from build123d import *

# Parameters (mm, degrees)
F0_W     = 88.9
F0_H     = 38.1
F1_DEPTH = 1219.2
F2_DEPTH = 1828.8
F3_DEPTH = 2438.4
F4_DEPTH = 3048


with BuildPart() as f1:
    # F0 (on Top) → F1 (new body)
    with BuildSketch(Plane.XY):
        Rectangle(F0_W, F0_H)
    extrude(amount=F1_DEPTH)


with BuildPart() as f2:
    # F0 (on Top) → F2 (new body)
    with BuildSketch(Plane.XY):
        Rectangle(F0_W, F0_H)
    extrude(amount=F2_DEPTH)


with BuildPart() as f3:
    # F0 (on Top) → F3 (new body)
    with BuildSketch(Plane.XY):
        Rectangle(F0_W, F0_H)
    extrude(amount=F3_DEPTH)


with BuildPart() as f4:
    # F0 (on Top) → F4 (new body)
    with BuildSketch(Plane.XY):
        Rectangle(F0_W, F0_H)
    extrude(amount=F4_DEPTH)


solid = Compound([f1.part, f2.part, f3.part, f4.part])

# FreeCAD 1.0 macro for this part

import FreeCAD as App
import Part
import Sketcher

V = App.Vector
Q = App.Units.Quantity

doc = App.newDocument("Part")
body = doc.addObject("PartDesign::Body", "Body")

# Sketch on XY plane
sketch1 = body.newObject("Sketcher::SketchObject", "Sketch")
sketch1.AttachmentSupport = (doc.getObject("XY_Plane"), [""])
sketch1.MapMode = "FlatFace"
sketch1.addGeometry(Part.LineSegment(V(-44, 19, 0), V(-44, -19, 0)), False)
sketch1.addGeometry(Part.LineSegment(V(-44, -19, 0), V(44, -19, 0)), False)
sketch1.addGeometry(Part.LineSegment(V(44, -19, 0), V(44, 19, 0)), False)
sketch1.addGeometry(Part.LineSegment(V(44, 19, 0), V(-44, 19, 0)), False)
sketch1.addConstraint(Sketcher.Constraint("Coincident", 0, 2, 1, 1))
sketch1.addConstraint(Sketcher.Constraint("Coincident", 1, 2, 2, 1))
sketch1.addConstraint(Sketcher.Constraint("Coincident", 2, 2, 3, 1))
sketch1.addConstraint(Sketcher.Constraint("Coincident", 3, 2, 0, 1))
sketch1.addConstraint(Sketcher.Constraint("Vertical", 0))
sketch1.addConstraint(Sketcher.Constraint("Horizontal", 1))
sketch1.addConstraint(Sketcher.Constraint("Vertical", 2))
sketch1.addConstraint(Sketcher.Constraint("Horizontal", 3))
sketch1.addConstraint(Sketcher.Constraint("Symmetric", 0, 2, 2, 2, -1, 1))
sketch1.addConstraint(Sketcher.Constraint("DistanceX", 1, 1, 1, 2, Q("3.5 in")))
sketch1.addConstraint(Sketcher.Constraint("DistanceY", 0, 2, 0, 1, Q("1.5 in")))
pad1 = body.newObject("PartDesign::Pad", "Pad")
pad1.Profile = sketch1
pad1.Length = Q("48 in")
body2 = doc.addObject("PartDesign::Body", "Body001")

# Sketch on XY plane
sketch2 = body2.newObject("Sketcher::SketchObject", "Sketch001")
sketch2.AttachmentSupport = (doc.getObject("XY_Plane001"), [""])
sketch2.MapMode = "FlatFace"
sketch2.addGeometry(Part.LineSegment(V(-44, 19, 0), V(-44, -19, 0)), False)
sketch2.addGeometry(Part.LineSegment(V(-44, -19, 0), V(44, -19, 0)), False)
sketch2.addGeometry(Part.LineSegment(V(44, -19, 0), V(44, 19, 0)), False)
sketch2.addGeometry(Part.LineSegment(V(44, 19, 0), V(-44, 19, 0)), False)
sketch2.addConstraint(Sketcher.Constraint("Coincident", 0, 2, 1, 1))
sketch2.addConstraint(Sketcher.Constraint("Coincident", 1, 2, 2, 1))
sketch2.addConstraint(Sketcher.Constraint("Coincident", 2, 2, 3, 1))
sketch2.addConstraint(Sketcher.Constraint("Coincident", 3, 2, 0, 1))
sketch2.addConstraint(Sketcher.Constraint("Vertical", 0))
sketch2.addConstraint(Sketcher.Constraint("Horizontal", 1))
sketch2.addConstraint(Sketcher.Constraint("Vertical", 2))
sketch2.addConstraint(Sketcher.Constraint("Horizontal", 3))
sketch2.addConstraint(Sketcher.Constraint("Symmetric", 0, 2, 2, 2, -1, 1))
sketch2.addConstraint(Sketcher.Constraint("DistanceX", 1, 1, 1, 2, Q("3.5 in")))
sketch2.addConstraint(Sketcher.Constraint("DistanceY", 0, 2, 0, 1, Q("1.5 in")))
pad2 = body2.newObject("PartDesign::Pad", "Pad001")
pad2.Profile = sketch2
pad2.Length = Q("72 in")
body3 = doc.addObject("PartDesign::Body", "Body002")

# Sketch on XY plane
sketch3 = body3.newObject("Sketcher::SketchObject", "Sketch002")
sketch3.AttachmentSupport = (doc.getObject("XY_Plane002"), [""])
sketch3.MapMode = "FlatFace"
sketch3.addGeometry(Part.LineSegment(V(-44, 19, 0), V(-44, -19, 0)), False)
sketch3.addGeometry(Part.LineSegment(V(-44, -19, 0), V(44, -19, 0)), False)
sketch3.addGeometry(Part.LineSegment(V(44, -19, 0), V(44, 19, 0)), False)
sketch3.addGeometry(Part.LineSegment(V(44, 19, 0), V(-44, 19, 0)), False)
sketch3.addConstraint(Sketcher.Constraint("Coincident", 0, 2, 1, 1))
sketch3.addConstraint(Sketcher.Constraint("Coincident", 1, 2, 2, 1))
sketch3.addConstraint(Sketcher.Constraint("Coincident", 2, 2, 3, 1))
sketch3.addConstraint(Sketcher.Constraint("Coincident", 3, 2, 0, 1))
sketch3.addConstraint(Sketcher.Constraint("Vertical", 0))
sketch3.addConstraint(Sketcher.Constraint("Horizontal", 1))
sketch3.addConstraint(Sketcher.Constraint("Vertical", 2))
sketch3.addConstraint(Sketcher.Constraint("Horizontal", 3))
sketch3.addConstraint(Sketcher.Constraint("Symmetric", 0, 2, 2, 2, -1, 1))
sketch3.addConstraint(Sketcher.Constraint("DistanceX", 1, 1, 1, 2, Q("3.5 in")))
sketch3.addConstraint(Sketcher.Constraint("DistanceY", 0, 2, 0, 1, Q("1.5 in")))
pad3 = body3.newObject("PartDesign::Pad", "Pad002")
pad3.Profile = sketch3
pad3.Length = Q("96 in")
body4 = doc.addObject("PartDesign::Body", "Body003")

# Sketch on XY plane
sketch4 = body4.newObject("Sketcher::SketchObject", "Sketch003")
sketch4.AttachmentSupport = (doc.getObject("XY_Plane003"), [""])
sketch4.MapMode = "FlatFace"
sketch4.addGeometry(Part.LineSegment(V(-44, 19, 0), V(-44, -19, 0)), False)
sketch4.addGeometry(Part.LineSegment(V(-44, -19, 0), V(44, -19, 0)), False)
sketch4.addGeometry(Part.LineSegment(V(44, -19, 0), V(44, 19, 0)), False)
sketch4.addGeometry(Part.LineSegment(V(44, 19, 0), V(-44, 19, 0)), False)
sketch4.addConstraint(Sketcher.Constraint("Coincident", 0, 2, 1, 1))
sketch4.addConstraint(Sketcher.Constraint("Coincident", 1, 2, 2, 1))
sketch4.addConstraint(Sketcher.Constraint("Coincident", 2, 2, 3, 1))
sketch4.addConstraint(Sketcher.Constraint("Coincident", 3, 2, 0, 1))
sketch4.addConstraint(Sketcher.Constraint("Vertical", 0))
sketch4.addConstraint(Sketcher.Constraint("Horizontal", 1))
sketch4.addConstraint(Sketcher.Constraint("Vertical", 2))
sketch4.addConstraint(Sketcher.Constraint("Horizontal", 3))
sketch4.addConstraint(Sketcher.Constraint("Symmetric", 0, 2, 2, 2, -1, 1))
sketch4.addConstraint(Sketcher.Constraint("DistanceX", 1, 1, 1, 2, Q("3.5 in")))
sketch4.addConstraint(Sketcher.Constraint("DistanceY", 0, 2, 0, 1, Q("1.5 in")))
pad4 = body4.newObject("PartDesign::Pad", "Pad003")
pad4.Profile = sketch4
pad4.Length = Q("120 in")

doc.recompute()
